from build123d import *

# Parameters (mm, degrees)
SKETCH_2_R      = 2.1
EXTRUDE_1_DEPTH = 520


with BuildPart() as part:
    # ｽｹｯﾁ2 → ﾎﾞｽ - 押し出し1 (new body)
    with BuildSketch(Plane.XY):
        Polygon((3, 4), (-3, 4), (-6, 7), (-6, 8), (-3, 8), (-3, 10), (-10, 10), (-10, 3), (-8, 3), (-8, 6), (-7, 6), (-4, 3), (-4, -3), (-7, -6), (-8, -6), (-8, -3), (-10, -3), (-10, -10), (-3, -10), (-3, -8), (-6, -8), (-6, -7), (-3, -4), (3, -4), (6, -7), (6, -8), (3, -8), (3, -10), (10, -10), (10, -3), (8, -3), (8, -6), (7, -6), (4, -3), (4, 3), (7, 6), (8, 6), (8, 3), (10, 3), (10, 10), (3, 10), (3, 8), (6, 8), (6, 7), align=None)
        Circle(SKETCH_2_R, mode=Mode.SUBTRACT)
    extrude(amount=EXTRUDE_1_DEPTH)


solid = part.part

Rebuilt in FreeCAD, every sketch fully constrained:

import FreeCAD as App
import Part
import Sketcher
from FreeCAD import Vector


def add_polygon(sketch, points):
    """Adds a closed chain of lines whose ends are joined by coincident constraints."""
    first, n = sketch.GeometryCount, len(points)
    for a, b in zip(points, points[1:] + points[:1]):
        sketch.addGeometry(Part.LineSegment(App.Vector(*a, 0), App.Vector(*b, 0)), False)
    for i in range(n):
        sketch.addConstraint(Sketcher.Constraint("Coincident", first + i, 2, first + (i + 1) % n, 1))

doc = App.newDocument("Part")
body = doc.addObject("PartDesign::Body", "Body")

sketch1 = body.newObject("Sketcher::SketchObject", "Sketch")
sketch1.AttachmentSupport = (doc.getObject("XY_Plane"), [""])
sketch1.MapMode = "FlatFace"
add_polygon(sketch1, [(3, 4), (-3, 4), (-6, 7), (-6, 8), (-3, 8), (-3, 10), (-10, 10), (-10, 3), (-8, 3), (-8, 6), (-7, 6), (-4, 3), (-4, -3), (-7, -6), (-8, -6), (-8, -3), (-10, -3), (-10, -10), (-3, -10), (-3, -8), (-6, -8), (-6, -7), (-3, -4), (3, -4), (6, -7), (6, -8), (3, -8), (3, -10), (10, -10), (10, -3), (8, -3), (8, -6), (7, -6), (4, -3), (4, 3), (7, 6), (8, 6), (8, 3), (10, 3), (10, 10), (3, 10), (3, 8), (6, 8), (6, 7)])
sketch1.addGeometry(Part.Circle(Vector(0, 0, 0), Vector(0, 0, 1), 2.1), False)
sketch1.addConstraint(Sketcher.Constraint("Horizontal", 0))
sketch1.addConstraint(Sketcher.Constraint("Vertical", 2))
sketch1.addConstraint(Sketcher.Constraint("Horizontal", 3))
sketch1.addConstraint(Sketcher.Constraint("Vertical", 4))
sketch1.addConstraint(Sketcher.Constraint("Horizontal", 5))
sketch1.addConstraint(Sketcher.Constraint("Vertical", 6))
sketch1.addConstraint(Sketcher.Constraint("Horizontal", 7))
sketch1.addConstraint(Sketcher.Constraint("Vertical", 8))
sketch1.addConstraint(Sketcher.Constraint("Horizontal", 9))
sketch1.addConstraint(Sketcher.Constraint("Vertical", 11))
sketch1.addConstraint(Sketcher.Constraint("Horizontal", 13))
sketch1.addConstraint(Sketcher.Constraint("Vertical", 14))
sketch1.addConstraint(Sketcher.Constraint("Horizontal", 15))
sketch1.addConstraint(Sketcher.Constraint("Vertical", 16))
sketch1.addConstraint(Sketcher.Constraint("Horizontal", 17))
sketch1.addConstraint(Sketcher.Constraint("Vertical", 18))
sketch1.addConstraint(Sketcher.Constraint("Horizontal", 19))
sketch1.addConstraint(Sketcher.Constraint("Vertical", 20))
sketch1.addConstraint(Sketcher.Constraint("Horizontal", 22))
sketch1.addConstraint(Sketcher.Constraint("Vertical", 24))
sketch1.addConstraint(Sketcher.Constraint("Horizontal", 25))
sketch1.addConstraint(Sketcher.Constraint("Vertical", 26))
sketch1.addConstraint(Sketcher.Constraint("Horizontal", 27))
sketch1.addConstraint(Sketcher.Constraint("Vertical", 28))
sketch1.addConstraint(Sketcher.Constraint("Horizontal", 29))
sketch1.addConstraint(Sketcher.Constraint("Vertical", 30))
sketch1.addConstraint(Sketcher.Constraint("Horizontal", 31))
sketch1.addConstraint(Sketcher.Constraint("Vertical", 33))
sketch1.addConstraint(Sketcher.Constraint("Horizontal", 35))
sketch1.addConstraint(Sketcher.Constraint("Vertical", 36))
sketch1.addConstraint(Sketcher.Constraint("Horizontal", 37))
sketch1.addConstraint(Sketcher.Constraint("Vertical", 38))
sketch1.addConstraint(Sketcher.Constraint("Horizontal", 39))
sketch1.addConstraint(Sketcher.Constraint("Vertical", 40))
sketch1.addConstraint(Sketcher.Constraint("Horizontal", 41))
sketch1.addConstraint(Sketcher.Constraint("Vertical", 42))
sketch1.addConstraint(Sketcher.Constraint("Coincident", 44, 3, -1, 1))
sketch1.addConstraint(Sketcher.Constraint("Symmetric", 0, 2, 22, 2, -1, 1))
sketch1.addConstraint(Sketcher.Constraint("Symmetric", 1, 2, 23, 2, -1, 1))
sketch1.addConstraint(Sketcher.Constraint("Symmetric", 3, 2, 25, 2, -1, 1))
sketch1.addConstraint(Sketcher.Constraint("Symmetric", 5, 2, 27, 2, -1, 1))
sketch1.addConstraint(Sketcher.Constraint("Symmetric", 7, 2, 29, 2, -1, 1))
sketch1.addConstraint(Sketcher.Constraint("Symmetric", 9, 2, 31, 2, -1, 1))
sketch1.addConstraint(Sketcher.Constraint("Symmetric", 10, 2, 32, 2, -1, 1))
sketch1.addConstraint(Sketcher.Constraint("Symmetric", 12, 2, 34, 2, -1, 1))
sketch1.addConstraint(Sketcher.Constraint("Symmetric", 14, 2, 36, 2, -1, 1))
sketch1.addConstraint(Sketcher.Constraint("Symmetric", 16, 2, 38, 2, -1, 1))
sketch1.addConstraint(Sketcher.Constraint("Symmetric", 18, 2, 40, 2, -1, 1))
sketch1.addConstraint(Sketcher.Constraint("Symmetric", 20, 2, 42, 2, -1, 1))
sketch1.addConstraint(Sketcher.Constraint("Symmetric", 20, 2, 23, 2, -2))
sketch1.addConstraint(Sketcher.Constraint("Symmetric", 18, 2, 25, 2, -2))
sketch1.addConstraint(Sketcher.Constraint("Symmetric", 16, 2, 27, 2, -2))
sketch1.addConstraint(Sketcher.Constraint("Symmetric", 14, 2, 29, 2, -2))
sketch1.addConstraint(Sketcher.Constraint("Symmetric", 12, 2, 31, 2, -2))
sketch1.addConstraint(Sketcher.Constraint("Parallel", 1, 10))
sketch1.addConstraint(Sketcher.Constraint("Perpendicular", 10, 12))
sketch1.addConstraint(Sketcher.Constraint("Parallel", 12, 21))
sketch1.addConstraint(Sketcher.Constraint("Perpendicular", 32, 34))
sketch1.addConstraint(Sketcher.Constraint("Parallel", 34, 43))
sketch1.addConstraint(Sketcher.Constraint("Horizontal", 7, 2, 10, 2))
sketch1.addConstraint(Sketcher.Constraint("Horizontal", 11, 2, 14, 2))
sketch1.addConstraint(Sketcher.Constraint("Vertical", 0, 2, 3, 2))
sketch1.addConstraint(Sketcher.Constraint("Equal", 35, 2))
sketch1.addConstraint(Sketcher.Constraint("Equal", 37, 4))
sketch1.addConstraint(Sketcher.Constraint("Equal", 39, 6))
sketch1.addConstraint(Sketcher.Constraint("Equal", 41, 8))
sketch1.addConstraint(Sketcher.Constraint("Equal", 22, 11))
sketch1.addConstraint(Sketcher.Constraint("Diameter", 44, 4.2))
sketch1.addConstraint(Sketcher.Constraint("DistanceX", 0, 2, 0, 1, 6.0))
sketch1.addConstraint(Sketcher.Constraint("DistanceX", 3, 1, 3, 2, 3.0))
sketch1.addConstraint(Sketcher.Constraint("DistanceX", 5, 2, 5, 1, 7.0))
sketch1.addConstraint(Sketcher.Constraint("DistanceX", 7, 1, 7, 2, 2.0))
sketch1.addConstraint(Sketcher.Constraint("DistanceX", 9, 1, 9, 2, 1.0))
pad1 = body.newObject("PartDesign::Pad", "Pad")
pad1.Profile = sketch1
pad1.Length = 520

doc.recompute()
